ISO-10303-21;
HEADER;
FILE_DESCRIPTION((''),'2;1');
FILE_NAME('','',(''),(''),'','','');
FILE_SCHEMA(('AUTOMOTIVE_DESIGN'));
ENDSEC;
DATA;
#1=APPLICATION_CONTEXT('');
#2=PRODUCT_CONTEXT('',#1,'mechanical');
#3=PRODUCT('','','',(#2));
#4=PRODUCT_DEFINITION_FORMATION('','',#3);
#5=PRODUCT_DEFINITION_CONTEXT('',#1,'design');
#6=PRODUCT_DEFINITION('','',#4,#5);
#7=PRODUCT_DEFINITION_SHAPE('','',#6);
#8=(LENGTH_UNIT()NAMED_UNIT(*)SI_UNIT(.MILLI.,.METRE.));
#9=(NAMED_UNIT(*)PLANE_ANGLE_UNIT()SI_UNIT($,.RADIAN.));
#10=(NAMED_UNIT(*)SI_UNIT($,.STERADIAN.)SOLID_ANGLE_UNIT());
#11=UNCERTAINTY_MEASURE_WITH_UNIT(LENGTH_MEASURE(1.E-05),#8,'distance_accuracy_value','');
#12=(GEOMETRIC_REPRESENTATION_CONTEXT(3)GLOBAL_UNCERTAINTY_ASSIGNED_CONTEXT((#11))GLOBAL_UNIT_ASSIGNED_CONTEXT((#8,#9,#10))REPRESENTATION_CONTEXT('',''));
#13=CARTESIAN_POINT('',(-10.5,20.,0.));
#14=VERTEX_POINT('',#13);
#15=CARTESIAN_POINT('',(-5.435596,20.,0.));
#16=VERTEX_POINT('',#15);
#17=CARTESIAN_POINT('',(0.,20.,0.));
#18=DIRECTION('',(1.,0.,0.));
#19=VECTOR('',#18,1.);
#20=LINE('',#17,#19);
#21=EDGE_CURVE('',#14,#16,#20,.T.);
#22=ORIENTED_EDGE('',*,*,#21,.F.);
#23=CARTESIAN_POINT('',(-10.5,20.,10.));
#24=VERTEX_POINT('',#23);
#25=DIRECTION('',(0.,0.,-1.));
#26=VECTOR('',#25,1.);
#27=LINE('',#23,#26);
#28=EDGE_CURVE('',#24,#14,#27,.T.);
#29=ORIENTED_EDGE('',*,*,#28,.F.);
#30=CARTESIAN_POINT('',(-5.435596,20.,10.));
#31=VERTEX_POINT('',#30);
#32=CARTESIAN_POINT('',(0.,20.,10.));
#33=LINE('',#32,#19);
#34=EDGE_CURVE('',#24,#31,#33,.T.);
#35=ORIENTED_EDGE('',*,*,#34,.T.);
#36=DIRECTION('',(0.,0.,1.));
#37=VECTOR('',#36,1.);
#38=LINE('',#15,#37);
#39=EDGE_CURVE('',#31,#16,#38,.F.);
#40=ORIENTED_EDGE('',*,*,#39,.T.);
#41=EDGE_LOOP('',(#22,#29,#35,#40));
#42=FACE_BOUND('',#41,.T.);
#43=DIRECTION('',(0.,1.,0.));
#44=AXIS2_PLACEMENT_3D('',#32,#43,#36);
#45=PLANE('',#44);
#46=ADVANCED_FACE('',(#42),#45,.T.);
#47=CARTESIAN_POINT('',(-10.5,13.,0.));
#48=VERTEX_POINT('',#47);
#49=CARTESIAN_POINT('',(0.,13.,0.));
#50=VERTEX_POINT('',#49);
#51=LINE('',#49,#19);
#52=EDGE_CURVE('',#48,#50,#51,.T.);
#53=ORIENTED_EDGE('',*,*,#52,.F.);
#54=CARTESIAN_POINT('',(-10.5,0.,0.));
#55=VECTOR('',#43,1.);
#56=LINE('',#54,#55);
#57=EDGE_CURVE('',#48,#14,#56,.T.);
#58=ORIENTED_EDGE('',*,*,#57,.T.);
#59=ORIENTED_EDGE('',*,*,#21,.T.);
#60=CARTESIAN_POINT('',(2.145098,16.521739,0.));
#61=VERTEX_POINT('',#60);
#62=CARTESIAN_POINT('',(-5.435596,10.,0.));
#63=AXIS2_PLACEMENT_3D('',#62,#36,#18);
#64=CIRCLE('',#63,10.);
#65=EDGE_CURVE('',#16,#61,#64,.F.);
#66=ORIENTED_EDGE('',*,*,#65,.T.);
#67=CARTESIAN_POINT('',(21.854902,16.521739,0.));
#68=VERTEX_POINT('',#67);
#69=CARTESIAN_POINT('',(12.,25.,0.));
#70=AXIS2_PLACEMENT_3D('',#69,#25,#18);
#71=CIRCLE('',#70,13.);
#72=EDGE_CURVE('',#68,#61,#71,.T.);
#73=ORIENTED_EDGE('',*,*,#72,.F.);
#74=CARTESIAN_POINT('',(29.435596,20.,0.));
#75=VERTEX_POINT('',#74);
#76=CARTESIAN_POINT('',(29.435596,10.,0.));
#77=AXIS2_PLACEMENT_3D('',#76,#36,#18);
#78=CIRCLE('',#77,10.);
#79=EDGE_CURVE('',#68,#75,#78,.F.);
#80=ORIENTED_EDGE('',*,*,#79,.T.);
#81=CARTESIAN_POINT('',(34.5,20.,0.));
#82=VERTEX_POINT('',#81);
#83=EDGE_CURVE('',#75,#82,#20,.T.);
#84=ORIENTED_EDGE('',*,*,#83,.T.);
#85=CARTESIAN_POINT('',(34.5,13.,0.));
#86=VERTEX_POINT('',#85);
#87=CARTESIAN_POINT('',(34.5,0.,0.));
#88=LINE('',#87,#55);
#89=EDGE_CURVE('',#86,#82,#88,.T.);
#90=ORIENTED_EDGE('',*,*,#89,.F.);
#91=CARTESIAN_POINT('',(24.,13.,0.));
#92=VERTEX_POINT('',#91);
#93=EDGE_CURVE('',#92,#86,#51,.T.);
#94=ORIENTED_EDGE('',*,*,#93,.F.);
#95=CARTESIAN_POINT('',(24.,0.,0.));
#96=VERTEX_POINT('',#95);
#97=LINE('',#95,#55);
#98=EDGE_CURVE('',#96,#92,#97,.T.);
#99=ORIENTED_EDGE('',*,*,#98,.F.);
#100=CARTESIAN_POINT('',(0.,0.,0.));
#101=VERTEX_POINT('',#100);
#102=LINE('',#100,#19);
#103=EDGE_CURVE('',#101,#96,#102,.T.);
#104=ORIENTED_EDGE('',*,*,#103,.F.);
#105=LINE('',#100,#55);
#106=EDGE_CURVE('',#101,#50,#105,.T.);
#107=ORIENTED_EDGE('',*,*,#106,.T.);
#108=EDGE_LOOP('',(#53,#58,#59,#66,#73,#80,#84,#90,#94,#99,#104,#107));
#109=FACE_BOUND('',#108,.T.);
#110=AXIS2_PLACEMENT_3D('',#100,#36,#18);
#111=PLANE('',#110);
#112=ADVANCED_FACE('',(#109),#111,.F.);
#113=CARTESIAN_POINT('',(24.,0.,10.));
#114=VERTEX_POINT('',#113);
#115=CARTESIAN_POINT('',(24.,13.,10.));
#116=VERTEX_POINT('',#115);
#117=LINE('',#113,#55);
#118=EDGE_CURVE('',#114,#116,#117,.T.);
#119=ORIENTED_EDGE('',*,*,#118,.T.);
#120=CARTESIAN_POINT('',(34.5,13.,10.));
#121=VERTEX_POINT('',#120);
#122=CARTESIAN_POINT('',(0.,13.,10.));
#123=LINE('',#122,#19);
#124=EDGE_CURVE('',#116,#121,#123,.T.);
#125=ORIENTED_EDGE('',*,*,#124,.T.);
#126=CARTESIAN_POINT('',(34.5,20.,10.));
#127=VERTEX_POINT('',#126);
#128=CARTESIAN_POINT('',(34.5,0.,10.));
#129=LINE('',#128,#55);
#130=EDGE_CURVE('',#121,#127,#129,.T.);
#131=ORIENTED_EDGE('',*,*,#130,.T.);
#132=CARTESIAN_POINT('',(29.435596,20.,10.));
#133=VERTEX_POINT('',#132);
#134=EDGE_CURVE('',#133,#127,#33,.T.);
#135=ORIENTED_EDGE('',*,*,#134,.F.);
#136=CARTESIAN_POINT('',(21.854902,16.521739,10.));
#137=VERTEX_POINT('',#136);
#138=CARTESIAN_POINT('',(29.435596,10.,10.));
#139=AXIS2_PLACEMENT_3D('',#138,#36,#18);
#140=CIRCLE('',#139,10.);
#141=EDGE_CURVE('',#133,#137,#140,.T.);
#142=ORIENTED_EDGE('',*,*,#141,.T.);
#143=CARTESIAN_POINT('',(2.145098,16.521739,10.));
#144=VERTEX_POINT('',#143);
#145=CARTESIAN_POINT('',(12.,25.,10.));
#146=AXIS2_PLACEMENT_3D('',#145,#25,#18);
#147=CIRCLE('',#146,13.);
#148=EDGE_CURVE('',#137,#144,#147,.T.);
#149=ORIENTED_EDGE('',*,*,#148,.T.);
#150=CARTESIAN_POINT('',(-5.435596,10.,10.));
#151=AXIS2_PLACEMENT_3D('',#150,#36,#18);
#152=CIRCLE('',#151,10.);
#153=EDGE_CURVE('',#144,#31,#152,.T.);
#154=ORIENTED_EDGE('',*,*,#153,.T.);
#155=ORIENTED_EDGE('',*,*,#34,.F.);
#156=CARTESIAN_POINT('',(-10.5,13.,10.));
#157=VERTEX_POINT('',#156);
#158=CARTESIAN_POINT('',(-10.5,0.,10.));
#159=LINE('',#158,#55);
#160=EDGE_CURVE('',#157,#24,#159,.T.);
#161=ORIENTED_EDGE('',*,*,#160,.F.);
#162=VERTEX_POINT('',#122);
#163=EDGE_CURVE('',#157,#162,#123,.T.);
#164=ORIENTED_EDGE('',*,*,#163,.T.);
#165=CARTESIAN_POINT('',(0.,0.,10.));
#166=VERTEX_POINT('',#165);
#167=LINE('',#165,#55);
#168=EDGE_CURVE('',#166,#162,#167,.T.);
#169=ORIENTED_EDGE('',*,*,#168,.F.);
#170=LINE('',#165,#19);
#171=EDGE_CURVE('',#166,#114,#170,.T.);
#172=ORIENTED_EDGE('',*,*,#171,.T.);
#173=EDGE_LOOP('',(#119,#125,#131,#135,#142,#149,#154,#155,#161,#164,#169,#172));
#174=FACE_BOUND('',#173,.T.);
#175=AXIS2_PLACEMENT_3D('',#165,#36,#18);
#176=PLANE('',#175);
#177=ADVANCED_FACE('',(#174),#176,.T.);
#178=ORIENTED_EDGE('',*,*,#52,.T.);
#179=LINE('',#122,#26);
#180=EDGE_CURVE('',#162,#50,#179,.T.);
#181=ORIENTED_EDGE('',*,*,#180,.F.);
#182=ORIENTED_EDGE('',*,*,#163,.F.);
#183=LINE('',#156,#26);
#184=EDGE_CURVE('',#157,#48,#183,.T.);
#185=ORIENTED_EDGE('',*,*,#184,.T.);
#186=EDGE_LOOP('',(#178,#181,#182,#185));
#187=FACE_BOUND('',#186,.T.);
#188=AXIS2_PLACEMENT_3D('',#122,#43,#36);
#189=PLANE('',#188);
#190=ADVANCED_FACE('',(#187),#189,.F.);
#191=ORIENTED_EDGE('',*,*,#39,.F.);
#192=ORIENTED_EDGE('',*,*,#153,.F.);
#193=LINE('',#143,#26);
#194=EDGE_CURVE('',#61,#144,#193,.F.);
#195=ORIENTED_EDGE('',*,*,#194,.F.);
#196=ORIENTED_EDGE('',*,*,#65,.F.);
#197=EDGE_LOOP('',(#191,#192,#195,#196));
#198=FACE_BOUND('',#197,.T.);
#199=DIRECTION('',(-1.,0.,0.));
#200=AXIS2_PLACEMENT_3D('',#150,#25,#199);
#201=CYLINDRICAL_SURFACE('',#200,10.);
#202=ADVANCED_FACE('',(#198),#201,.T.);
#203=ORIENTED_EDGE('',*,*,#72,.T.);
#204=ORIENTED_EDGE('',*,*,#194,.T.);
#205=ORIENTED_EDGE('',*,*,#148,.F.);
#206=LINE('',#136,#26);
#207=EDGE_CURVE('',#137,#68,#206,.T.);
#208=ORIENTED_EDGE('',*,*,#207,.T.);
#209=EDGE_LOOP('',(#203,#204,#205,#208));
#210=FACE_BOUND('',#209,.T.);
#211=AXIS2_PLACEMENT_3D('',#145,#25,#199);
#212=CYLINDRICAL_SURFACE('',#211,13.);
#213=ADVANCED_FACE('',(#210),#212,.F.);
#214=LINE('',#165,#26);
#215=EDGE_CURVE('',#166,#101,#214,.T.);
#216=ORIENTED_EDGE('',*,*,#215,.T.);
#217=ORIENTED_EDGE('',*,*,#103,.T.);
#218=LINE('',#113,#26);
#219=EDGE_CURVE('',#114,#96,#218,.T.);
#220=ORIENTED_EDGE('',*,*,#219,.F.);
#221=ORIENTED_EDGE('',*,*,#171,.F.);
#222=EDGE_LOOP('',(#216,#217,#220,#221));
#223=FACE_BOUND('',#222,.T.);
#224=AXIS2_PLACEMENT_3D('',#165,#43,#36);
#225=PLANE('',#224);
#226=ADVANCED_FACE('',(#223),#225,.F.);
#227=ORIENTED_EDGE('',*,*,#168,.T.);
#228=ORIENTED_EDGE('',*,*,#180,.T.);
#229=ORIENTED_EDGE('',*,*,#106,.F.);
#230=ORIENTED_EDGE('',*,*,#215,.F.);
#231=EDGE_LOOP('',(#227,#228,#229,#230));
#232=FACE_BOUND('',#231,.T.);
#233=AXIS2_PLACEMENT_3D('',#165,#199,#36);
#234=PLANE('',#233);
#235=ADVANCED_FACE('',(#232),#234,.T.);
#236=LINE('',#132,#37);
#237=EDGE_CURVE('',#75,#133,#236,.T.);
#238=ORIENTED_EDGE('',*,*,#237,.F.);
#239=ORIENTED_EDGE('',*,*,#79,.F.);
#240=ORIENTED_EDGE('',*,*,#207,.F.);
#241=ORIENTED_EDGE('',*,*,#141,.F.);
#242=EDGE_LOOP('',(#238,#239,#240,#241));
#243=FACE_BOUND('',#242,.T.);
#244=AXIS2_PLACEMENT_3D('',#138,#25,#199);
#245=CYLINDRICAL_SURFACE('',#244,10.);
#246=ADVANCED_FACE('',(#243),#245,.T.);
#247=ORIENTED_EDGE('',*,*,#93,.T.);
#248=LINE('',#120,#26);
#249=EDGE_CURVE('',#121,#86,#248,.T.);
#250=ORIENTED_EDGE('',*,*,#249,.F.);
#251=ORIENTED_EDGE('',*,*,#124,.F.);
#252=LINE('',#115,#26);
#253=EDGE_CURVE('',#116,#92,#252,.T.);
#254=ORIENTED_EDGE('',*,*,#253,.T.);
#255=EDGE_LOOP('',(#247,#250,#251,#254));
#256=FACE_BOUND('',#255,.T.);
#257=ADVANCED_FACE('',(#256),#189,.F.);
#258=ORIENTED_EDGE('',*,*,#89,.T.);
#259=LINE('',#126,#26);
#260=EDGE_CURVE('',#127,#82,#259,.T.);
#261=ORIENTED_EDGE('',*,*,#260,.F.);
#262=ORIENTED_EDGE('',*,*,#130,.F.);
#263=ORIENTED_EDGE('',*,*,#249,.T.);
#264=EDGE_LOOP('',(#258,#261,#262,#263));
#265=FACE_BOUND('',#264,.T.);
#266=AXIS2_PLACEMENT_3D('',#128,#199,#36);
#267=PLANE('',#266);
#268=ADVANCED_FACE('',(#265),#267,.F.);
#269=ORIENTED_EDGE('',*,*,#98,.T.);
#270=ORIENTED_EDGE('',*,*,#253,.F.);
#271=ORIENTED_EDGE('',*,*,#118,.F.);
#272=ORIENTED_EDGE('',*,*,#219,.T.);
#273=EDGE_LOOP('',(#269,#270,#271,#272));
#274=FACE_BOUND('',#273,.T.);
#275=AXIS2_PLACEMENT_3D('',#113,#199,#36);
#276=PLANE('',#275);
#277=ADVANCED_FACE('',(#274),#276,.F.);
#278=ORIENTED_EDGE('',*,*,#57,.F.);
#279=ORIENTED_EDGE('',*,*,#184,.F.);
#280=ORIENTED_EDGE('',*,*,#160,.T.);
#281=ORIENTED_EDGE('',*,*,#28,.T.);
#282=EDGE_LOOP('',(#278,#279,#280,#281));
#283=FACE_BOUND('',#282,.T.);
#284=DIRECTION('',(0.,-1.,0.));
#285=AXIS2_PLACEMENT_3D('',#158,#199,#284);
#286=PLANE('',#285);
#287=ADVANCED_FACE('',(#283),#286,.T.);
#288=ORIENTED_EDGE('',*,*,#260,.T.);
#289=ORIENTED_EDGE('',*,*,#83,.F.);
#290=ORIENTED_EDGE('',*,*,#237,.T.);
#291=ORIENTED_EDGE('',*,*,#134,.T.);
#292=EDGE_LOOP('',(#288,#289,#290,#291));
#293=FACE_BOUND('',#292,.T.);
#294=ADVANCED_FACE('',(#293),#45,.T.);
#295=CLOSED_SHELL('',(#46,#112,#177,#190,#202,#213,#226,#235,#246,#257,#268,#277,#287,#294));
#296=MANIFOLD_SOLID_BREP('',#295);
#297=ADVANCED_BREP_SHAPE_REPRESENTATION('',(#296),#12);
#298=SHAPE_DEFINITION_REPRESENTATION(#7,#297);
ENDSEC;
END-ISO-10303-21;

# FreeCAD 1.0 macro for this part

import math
import FreeCAD as App
import Part
import Sketcher

V = App.Vector
Q = App.Units.Quantity


def edges_at(feature, points):
    """Names of the edges that pass closest to the given points."""
    edges = feature.Shape.Edges
    near = lambda p: min(range(len(edges)), key=lambda i: edges[i].distToShape(Part.Vertex(*p))[0])
    return sorted({f"Edge{near(p) + 1}" for p in points})


def add_polygon(sketch, points):
    """Adds a closed chain of lines whose ends are joined by coincident constraints."""
    first, n = sketch.GeometryCount, len(points)
    for a, b in zip(points, points[1:] + points[:1]):
        sketch.addGeometry(Part.LineSegment(App.Vector(*a, 0), App.Vector(*b, 0)), False)
    for i in range(n):
        sketch.addConstraint(Sketcher.Constraint("Coincident", first + i, 2, first + (i + 1) % n, 1))

doc = App.newDocument("Part")
body = doc.addObject("PartDesign::Body", "Body")

sketch1 = body.newObject("Sketcher::SketchObject", "Sketch")
sketch1.AttachmentSupport = (doc.getObject("XY_Plane"), [""])
sketch1.MapMode = "FlatFace"
add_polygon(sketch1, [(0, 13), (0, 0), (24, 0), (24, 13), (34, 13), (34, 20), (-10, 20), (-10, 13)])
sketch1.addConstraint([
    Sketcher.Constraint("Vertical", 0),
    Sketcher.Constraint("Horizontal", 1),
    Sketcher.Constraint("Vertical", 2),
    Sketcher.Constraint("Horizontal", 3),
    Sketcher.Constraint("Vertical", 4),
    Sketcher.Constraint("Horizontal", 5),
    Sketcher.Constraint("Vertical", 6),
    Sketcher.Constraint("Horizontal", 7),
    Sketcher.Constraint("Coincident", 0, 2, -1, 1),
    Sketcher.Constraint("Horizontal", 3, 2, 6, 2),
    Sketcher.Constraint("Equal", 3, 7),
    Sketcher.Constraint("DistanceX", 1, 1, 1, 2, Q("24 mm")),
    Sketcher.Constraint("DistanceX", 5, 2, 5, 1, Q("45 mm")),
    Sketcher.Constraint("DistanceY", 0, 2, 0, 1, Q("13 mm")),
    Sketcher.Constraint("DistanceY", 4, 1, 4, 2, Q("7 mm")),
])
pad1 = body.newObject("PartDesign::Pad", "Pad")
pad1.Profile = sketch1
pad1.Length = 10

sketch2 = body.newObject("Sketcher::SketchObject", "Sketch001")
sketch2.AttachmentSupport = (doc.getObject("XY_Plane"), [""])
sketch2.MapMode = "FlatFace"
sketch2.addGeometry([
    Part.LineSegment(V(0, 20, 0), V(24, 20, 0)),
    Part.ArcOfCircle(Part.Circle(V(12, 25, 0), V(0, 0, 1), 13), math.radians(-157), math.radians(-23)),
], False)
sketch2.addConstraint([
    Sketcher.Constraint("Coincident", 0, 1, 1, 1),
    Sketcher.Constraint("Coincident", 1, 2, 0, 2),
    Sketcher.Constraint("Horizontal", 0),
    Sketcher.Constraint("PointOnObject", 0, 1, -2),
    Sketcher.Constraint("Radius", 1, Q("13 mm")),
    Sketcher.Constraint("DistanceX", 0, 1, 0, 2, Q("24 mm")),
    Sketcher.Constraint("DistanceY", -1, 1, 1, 3, Q("25 mm")),
])
pocket1 = body.newObject("PartDesign::Pocket", "Pocket")
pocket1.Profile = sketch2
pocket1.Type = "ThroughAll"
pocket1.Reversed = True
doc.recompute()

fillet = body.newObject("PartDesign::Fillet", "Fillet")
fillet.Base = (pocket1, edges_at(pocket1, [(0, 20, 5), (24, 20, 5)]))
fillet.Radius = 10

doc.recompute()
